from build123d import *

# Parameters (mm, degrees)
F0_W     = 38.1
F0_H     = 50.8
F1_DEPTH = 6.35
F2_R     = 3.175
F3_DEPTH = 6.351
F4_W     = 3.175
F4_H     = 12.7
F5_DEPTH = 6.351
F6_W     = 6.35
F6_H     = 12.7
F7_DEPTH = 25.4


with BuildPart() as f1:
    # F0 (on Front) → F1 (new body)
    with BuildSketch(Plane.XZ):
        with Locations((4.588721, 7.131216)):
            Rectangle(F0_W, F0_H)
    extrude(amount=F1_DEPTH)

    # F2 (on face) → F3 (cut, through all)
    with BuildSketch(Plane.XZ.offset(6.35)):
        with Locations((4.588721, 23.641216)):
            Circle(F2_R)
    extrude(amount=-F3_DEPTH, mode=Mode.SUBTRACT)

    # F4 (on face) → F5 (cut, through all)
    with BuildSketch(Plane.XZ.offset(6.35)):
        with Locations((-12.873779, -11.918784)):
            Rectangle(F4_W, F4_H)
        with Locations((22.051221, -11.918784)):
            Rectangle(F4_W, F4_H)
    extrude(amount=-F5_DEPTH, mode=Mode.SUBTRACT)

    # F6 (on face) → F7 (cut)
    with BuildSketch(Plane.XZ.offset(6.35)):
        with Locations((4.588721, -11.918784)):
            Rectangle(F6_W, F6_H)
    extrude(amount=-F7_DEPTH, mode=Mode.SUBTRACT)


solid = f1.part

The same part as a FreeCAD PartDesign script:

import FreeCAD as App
import Part
import Sketcher
from FreeCAD import Vector
Q = App.Units.Quantity

doc = App.newDocument("Part")
params = doc.addObject("Spreadsheet::Sheet", "Params")
for row, (alias, value) in enumerate([
    ("sketch1_height", "2 in"),
    ("sketch1_width", "1.5 in"),
    ("pad1_length", "0.25 in"),
    ("sketch2_diameter", "0.25 in"),
    ("sketch3_height", "0.5 in"),
    ("sketch3_width", "0.125 in"),
    ("sketch4_height", "0.5 in"),
    ("sketch4_width", "0.25 in"),
    ("pocket3_length", "1 in"),
], start=1):
    params.set(f"A{row}", alias)
    params.set(f"B{row}", "=" + value)
    params.setAlias(f"B{row}", alias)

body = doc.addObject("PartDesign::Body", "Body")

# Sketch on XZ plane
sketch1 = doc.addObject("Sketcher::SketchObject", "Sketch")
body.addObject(sketch1)
sketch1.AttachmentSupport = (doc.XZ_Plane, [""])
sketch1.MapMode = "FlatFace"
sketch1.addGeometry([
    Part.LineSegment(Vector(-14.461279, 32.531216, 0), Vector(-14.461279, -18.268784, 0)),
    Part.LineSegment(Vector(-14.461279, -18.268784, 0), Vector(23.638721, -18.268784, 0)),
    Part.LineSegment(Vector(23.638721, -18.268784, 0), Vector(23.638721, 32.531216, 0)),
    Part.LineSegment(Vector(23.638721, 32.531216, 0), Vector(-14.461279, 32.531216, 0)),
], False)
sketch1.addConstraint([
    Sketcher.Constraint("Coincident", 0, 2, 1, 1),
    Sketcher.Constraint("Coincident", 1, 2, 2, 1),
    Sketcher.Constraint("Coincident", 2, 2, 3, 1),
    Sketcher.Constraint("Coincident", 3, 2, 0, 1),
    Sketcher.Constraint("Vertical", 0),
    Sketcher.Constraint("Horizontal", 1),
    Sketcher.Constraint("Vertical", 2),
    Sketcher.Constraint("Horizontal", 3),
    Sketcher.Constraint("DistanceY", 0, 2, 0, 1, Q("2 in")),
    Sketcher.Constraint("DistanceX", 1, 1, 1, 2, Q("1.5 in")),
    Sketcher.Constraint("DistanceX", 0, 2, -1, 1, Q("14.461279 mm")),
    Sketcher.Constraint("DistanceY", 0, 2, -1, 1, Q("18.268784 mm")),
])
sketch1.setExpression("Constraints[8]", "Params.sketch1_height")
sketch1.setExpression("Constraints[9]", "Params.sketch1_width")
pad1 = doc.addObject("PartDesign::Pad", "Pad")
body.addObject(pad1)
pad1.Profile = sketch1
pad1.setExpression("Length", "Params.pad1_length")

# Sketch on XZ plane
sketch2 = doc.addObject("Sketcher::SketchObject", "Sketch001")
body.addObject(sketch2)
sketch2.AttachmentSupport = (doc.XZ_Plane, [""])
sketch2.MapMode = "FlatFace"
sketch2.AttachmentOffset = App.Placement(Vector(0, 0, 0.25 * 25.4), App.Rotation())
sketch2.addGeometry(Part.Circle(Vector(4.588721, 23.641216, 0), Vector(0, 0, 1), 3.175), False)
sketch2.addConstraint([
    Sketcher.Constraint("Diameter", 0, Q("0.25 in")),
    Sketcher.Constraint("DistanceX", -1, 1, 0, 3, Q("4.588721 mm")),
    Sketcher.Constraint("DistanceY", -1, 1, 0, 3, Q("23.641216 mm")),
])
sketch2.setExpression("Constraints[0]", "Params.sketch2_diameter")
pocket1 = doc.addObject("PartDesign::Pocket", "Pocket")
body.addObject(pocket1)
pocket1.Profile = sketch2
pocket1.Type = "ThroughAll"

# Sketch on XZ plane
sketch3 = doc.addObject("Sketcher::SketchObject", "Sketch002")
body.addObject(sketch3)
sketch3.AttachmentSupport = (doc.XZ_Plane, [""])
sketch3.MapMode = "FlatFace"
sketch3.AttachmentOffset = App.Placement(Vector(0, 0, 0.25 * 25.4), App.Rotation())
sketch3.addGeometry([
    Part.LineSegment(Vector(-14.461279, -5.568784, 0), Vector(-14.461279, -18.268784, 0)),  # 0
    Part.LineSegment(Vector(-14.461279, -18.268784, 0), Vector(-11.286279, -18.268784, 0)),  # 1
    Part.LineSegment(Vector(-11.286279, -18.268784, 0), Vector(-11.286279, -5.568784, 0)),  # 2
    Part.LineSegment(Vector(-11.286279, -5.568784, 0), Vector(-14.461279, -5.568784, 0)),  # 3
    Part.LineSegment(Vector(20.463721, -5.568784, 0), Vector(20.463721, -18.268784, 0)),  # 4
    Part.LineSegment(Vector(20.463721, -18.268784, 0), Vector(23.638721, -18.268784, 0)),  # 5
    Part.LineSegment(Vector(23.638721, -18.268784, 0), Vector(23.638721, -5.568784, 0)),  # 6
    Part.LineSegment(Vector(23.638721, -5.568784, 0), Vector(20.463721, -5.568784, 0)),  # 7
], False)
sketch3.addConstraint([
    Sketcher.Constraint("Coincident", 0, 2, 1, 1),
    Sketcher.Constraint("Coincident", 1, 2, 2, 1),
    Sketcher.Constraint("Coincident", 2, 2, 3, 1),
    Sketcher.Constraint("Coincident", 3, 2, 0, 1),
    Sketcher.Constraint("Coincident", 4, 2, 5, 1),
    Sketcher.Constraint("Coincident", 5, 2, 6, 1),
    Sketcher.Constraint("Coincident", 6, 2, 7, 1),
    Sketcher.Constraint("Coincident", 7, 2, 4, 1),
    Sketcher.Constraint("Vertical", 0),
    Sketcher.Constraint("Horizontal", 1),
    Sketcher.Constraint("Vertical", 2),
    Sketcher.Constraint("Horizontal", 3),
    Sketcher.Constraint("Vertical", 4),
    Sketcher.Constraint("Horizontal", 5),
    Sketcher.Constraint("Vertical", 6),
    Sketcher.Constraint("Horizontal", 7),
    Sketcher.Constraint("Horizontal", 1, 2, 4, 2),
    Sketcher.Constraint("Horizontal", 3, 2, 6, 2),
    Sketcher.Constraint("Equal", 3, 5),
    Sketcher.Constraint("DistanceY", 0, 2, 0, 1, Q("0.5 in")),
    Sketcher.Constraint("DistanceX", 0, 2, 5, 2, Q("1.5 in")),
    Sketcher.Constraint("DistanceX", 1, 1, 1, 2, Q("0.125 in")),
    Sketcher.Constraint("DistanceX", 0, 2, -1, 1, Q("14.461279 mm")),
    Sketcher.Constraint("DistanceY", 0, 2, -1, 1, Q("18.268784 mm")),
])
sketch3.setExpression("Constraints[19]", "Params.sketch3_height")
sketch3.setExpression("Constraints[21]", "Params.sketch3_width")
pocket2 = doc.addObject("PartDesign::Pocket", "Pocket001")
body.addObject(pocket2)
pocket2.Profile = sketch3
pocket2.Type = "ThroughAll"

# Sketch on XZ plane
sketch4 = doc.addObject("Sketcher::SketchObject", "Sketch003")
body.addObject(sketch4)
sketch4.AttachmentSupport = (doc.XZ_Plane, [""])
sketch4.MapMode = "FlatFace"
sketch4.AttachmentOffset = App.Placement(Vector(0, 0, 0.25 * 25.4), App.Rotation())
sketch4.addGeometry([
    Part.LineSegment(Vector(1.413721, -5.568784, 0), Vector(1.413721, -18.268784, 0)),
    Part.LineSegment(Vector(1.413721, -18.268784, 0), Vector(7.763721, -18.268784, 0)),
    Part.LineSegment(Vector(7.763721, -18.268784, 0), Vector(7.763721, -5.568784, 0)),
    Part.LineSegment(Vector(7.763721, -5.568784, 0), Vector(1.413721, -5.568784, 0)),
], False)
sketch4.addConstraint([
    Sketcher.Constraint("Coincident", 0, 2, 1, 1),
    Sketcher.Constraint("Coincident", 1, 2, 2, 1),
    Sketcher.Constraint("Coincident", 2, 2, 3, 1),
    Sketcher.Constraint("Coincident", 3, 2, 0, 1),
    Sketcher.Constraint("Vertical", 0),
    Sketcher.Constraint("Horizontal", 1),
    Sketcher.Constraint("Vertical", 2),
    Sketcher.Constraint("Horizontal", 3),
    Sketcher.Constraint("DistanceY", 0, 2, 0, 1, Q("0.5 in")),
    Sketcher.Constraint("DistanceX", 1, 1, 1, 2, Q("0.25 in")),
    Sketcher.Constraint("DistanceX", -1, 1, 0, 2, Q("1.413721 mm")),
    Sketcher.Constraint("DistanceY", 0, 2, -1, 1, Q("18.268784 mm")),
])
sketch4.setExpression("Constraints[8]", "Params.sketch4_height")
sketch4.setExpression("Constraints[9]", "Params.sketch4_width")
pocket3 = doc.addObject("PartDesign::Pocket", "Pocket002")
body.addObject(pocket3)
pocket3.Profile = sketch4
pocket3.setExpression("Length", "Params.pocket3_length")

doc.recompute()
